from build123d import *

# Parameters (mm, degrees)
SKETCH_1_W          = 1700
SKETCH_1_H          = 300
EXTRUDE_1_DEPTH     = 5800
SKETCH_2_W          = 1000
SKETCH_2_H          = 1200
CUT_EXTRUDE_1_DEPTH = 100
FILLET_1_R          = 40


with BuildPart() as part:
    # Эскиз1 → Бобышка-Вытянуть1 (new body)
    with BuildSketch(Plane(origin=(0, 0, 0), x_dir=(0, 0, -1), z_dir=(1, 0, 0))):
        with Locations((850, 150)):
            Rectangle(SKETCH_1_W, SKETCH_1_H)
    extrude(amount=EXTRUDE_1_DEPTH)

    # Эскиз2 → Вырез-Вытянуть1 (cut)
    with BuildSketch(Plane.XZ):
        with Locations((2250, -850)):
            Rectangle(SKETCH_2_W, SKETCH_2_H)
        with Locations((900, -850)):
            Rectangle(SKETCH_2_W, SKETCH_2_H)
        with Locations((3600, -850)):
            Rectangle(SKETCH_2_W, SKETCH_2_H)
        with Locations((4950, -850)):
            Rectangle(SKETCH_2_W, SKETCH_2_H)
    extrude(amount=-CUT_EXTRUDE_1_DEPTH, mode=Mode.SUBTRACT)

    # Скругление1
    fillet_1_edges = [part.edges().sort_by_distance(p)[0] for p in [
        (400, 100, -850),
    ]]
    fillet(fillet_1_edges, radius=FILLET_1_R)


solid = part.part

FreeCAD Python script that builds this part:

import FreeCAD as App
import Part
import Sketcher

V = App.Vector
Q = App.Units.Quantity


def edges_at(feature, points):
    """Names of the edges that pass closest to the given points."""
    edges = feature.Shape.Edges
    near = lambda p: min(range(len(edges)), key=lambda i: edges[i].distToShape(Part.Vertex(*p))[0])
    return sorted({f"Edge{near(p) + 1}" for p in points})

doc = App.newDocument("Part")
params = doc.addObject("Spreadsheet::Sheet", "Params")
for row, (alias, value) in enumerate([
    ("sketch1_width", "300 mm"),
    ("sketch1_height", "1700 mm"),
    ("pad1_length", "5800 mm"),
    ("sketch2_width", "1000 mm"),
    ("sketch2_height", "1200 mm"),
    ("pocket1_length", "100 mm"),
    ("fillet_radius", "40 mm"),
], start=1):
    params.set(f"A{row}", alias)
    params.set(f"B{row}", "=" + value)
    params.setAlias(f"B{row}", alias)

body = doc.addObject("PartDesign::Body", "Body")

sketch1 = body.newObject("Sketcher::SketchObject", "Sketch")
sketch1.AttachmentSupport = (doc.getObject("YZ_Plane"), [""])
sketch1.MapMode = "FlatFace"
sketch1.addGeometry([
    Part.LineSegment(V(300, 0, 0), V(0, 0, 0)),
    Part.LineSegment(V(0, 0, 0), V(0, -1700, 0)),
    Part.LineSegment(V(0, -1700, 0), V(300, -1700, 0)),
    Part.LineSegment(V(300, -1700, 0), V(300, 0, 0)),
], False)
sketch1.addConstraint([
    Sketcher.Constraint("Coincident", 0, 2, 1, 1),
    Sketcher.Constraint("Coincident", 1, 2, 2, 1),
    Sketcher.Constraint("Coincident", 2, 2, 3, 1),
    Sketcher.Constraint("Coincident", 3, 2, 0, 1),
    Sketcher.Constraint("Horizontal", 0),
    Sketcher.Constraint("Vertical", 1),
    Sketcher.Constraint("Horizontal", 2),
    Sketcher.Constraint("Vertical", 3),
    Sketcher.Constraint("Coincident", 0, 2, -1, 1),
    Sketcher.Constraint("DistanceX", 0, 2, 0, 1, Q("300 mm")),
    Sketcher.Constraint("DistanceY", 1, 2, 1, 1, Q("1700 mm")),
])
sketch1.setExpression("Constraints[9]", "Params.sketch1_width")
sketch1.setExpression("Constraints[10]", "Params.sketch1_height")
pad1 = body.newObject("PartDesign::Pad", "Pad")
pad1.Profile = sketch1
pad1.setExpression("Length", "Params.pad1_length")

sketch2 = body.newObject("Sketcher::SketchObject", "Sketch001")
sketch2.AttachmentSupport = (doc.getObject("XZ_Plane"), [""])
sketch2.MapMode = "FlatFace"
sketch2.addGeometry([
    Part.LineSegment(V(1750, -250, 0), V(1750, -1450, 0)),
    Part.LineSegment(V(1750, -1450, 0), V(2750, -1450, 0)),
    Part.LineSegment(V(2750, -1450, 0), V(2750, -250, 0)),
    Part.LineSegment(V(2750, -250, 0), V(1750, -250, 0)),
    Part.LineSegment(V(400, -250, 0), V(400, -1450, 0)),
    Part.LineSegment(V(400, -1450, 0), V(1400, -1450, 0)),
    Part.LineSegment(V(1400, -1450, 0), V(1400, -250, 0)),
    Part.LineSegment(V(1400, -250, 0), V(400, -250, 0)),
    Part.LineSegment(V(3100, -250, 0), V(3100, -1450, 0)),
    Part.LineSegment(V(3100, -1450, 0), V(4100, -1450, 0)),
    Part.LineSegment(V(4100, -1450, 0), V(4100, -250, 0)),
    Part.LineSegment(V(4100, -250, 0), V(3100, -250, 0)),
    Part.LineSegment(V(4450, -250, 0), V(4450, -1450, 0)),
    Part.LineSegment(V(4450, -1450, 0), V(5450, -1450, 0)),
    Part.LineSegment(V(5450, -1450, 0), V(5450, -250, 0)),
    Part.LineSegment(V(5450, -250, 0), V(4450, -250, 0)),
], False)
sketch2.addConstraint([
    Sketcher.Constraint("Coincident", 0, 2, 1, 1),
    Sketcher.Constraint("Coincident", 1, 2, 2, 1),
    Sketcher.Constraint("Coincident", 2, 2, 3, 1),
    Sketcher.Constraint("Coincident", 3, 2, 0, 1),
    Sketcher.Constraint("Coincident", 4, 2, 5, 1),
    Sketcher.Constraint("Coincident", 5, 2, 6, 1),
    Sketcher.Constraint("Coincident", 6, 2, 7, 1),
    Sketcher.Constraint("Coincident", 7, 2, 4, 1),
    Sketcher.Constraint("Coincident", 8, 2, 9, 1),
    Sketcher.Constraint("Coincident", 9, 2, 10, 1),
    Sketcher.Constraint("Coincident", 10, 2, 11, 1),
    Sketcher.Constraint("Coincident", 11, 2, 8, 1),
    Sketcher.Constraint("Coincident", 12, 2, 13, 1),
    Sketcher.Constraint("Coincident", 13, 2, 14, 1),
    Sketcher.Constraint("Coincident", 14, 2, 15, 1),
    Sketcher.Constraint("Coincident", 15, 2, 12, 1),
    Sketcher.Constraint("Vertical", 0),
    Sketcher.Constraint("Horizontal", 1),
    Sketcher.Constraint("Vertical", 2),
    Sketcher.Constraint("Horizontal", 3),
    Sketcher.Constraint("Vertical", 4),
    Sketcher.Constraint("Horizontal", 5),
    Sketcher.Constraint("Vertical", 6),
    Sketcher.Constraint("Horizontal", 7),
    Sketcher.Constraint("Vertical", 8),
    Sketcher.Constraint("Horizontal", 9),
    Sketcher.Constraint("Vertical", 10),
    Sketcher.Constraint("Horizontal", 11),
    Sketcher.Constraint("Vertical", 12),
    Sketcher.Constraint("Horizontal", 13),
    Sketcher.Constraint("Vertical", 14),
    Sketcher.Constraint("Horizontal", 15),
    Sketcher.Constraint("Horizontal", 1, 2, 4, 2),
    Sketcher.Constraint("Horizontal", 3, 2, 6, 2),
    Sketcher.Constraint("Horizontal", 5, 2, 8, 2),
    Sketcher.Constraint("Horizontal", 7, 2, 10, 2),
    Sketcher.Constraint("Horizontal", 9, 2, 12, 2),
    Sketcher.Constraint("Horizontal", 11, 2, 14, 2),
    Sketcher.Constraint("Equal", 3, 5),
    Sketcher.Constraint("Equal", 7, 9),
    Sketcher.Constraint("Equal", 11, 13),
    Sketcher.Constraint("DistanceX", 1, 1, 1, 2, Q("1000 mm")),
    Sketcher.Constraint("DistanceY", 0, 2, 0, 1, Q("1200 mm")),
    Sketcher.Constraint("DistanceX", -1, 1, 0, 2, Q("1750 mm")),
    Sketcher.Constraint("DistanceY", 0, 2, -1, 1, Q("1450 mm")),
    Sketcher.Constraint("DistanceX", -1, 1, 4, 2, Q("400 mm")),
    Sketcher.Constraint("DistanceX", -1, 1, 8, 2, Q("3100 mm")),
    Sketcher.Constraint("DistanceX", -1, 1, 12, 2, Q("4450 mm")),
])
sketch2.setExpression("Constraints[41]", "Params.sketch2_width")
sketch2.setExpression("Constraints[42]", "Params.sketch2_height")
pocket1 = body.newObject("PartDesign::Pocket", "Pocket")
pocket1.Profile = sketch2
pocket1.setExpression("Length", "Params.pocket1_length")
doc.recompute()

fillet = body.newObject("PartDesign::Fillet", "Fillet")
fillet.Base = (pocket1, edges_at(pocket1, [(400, 100, -850)]))
fillet.setExpression("Radius", "Params.fillet_radius")

doc.recompute()
